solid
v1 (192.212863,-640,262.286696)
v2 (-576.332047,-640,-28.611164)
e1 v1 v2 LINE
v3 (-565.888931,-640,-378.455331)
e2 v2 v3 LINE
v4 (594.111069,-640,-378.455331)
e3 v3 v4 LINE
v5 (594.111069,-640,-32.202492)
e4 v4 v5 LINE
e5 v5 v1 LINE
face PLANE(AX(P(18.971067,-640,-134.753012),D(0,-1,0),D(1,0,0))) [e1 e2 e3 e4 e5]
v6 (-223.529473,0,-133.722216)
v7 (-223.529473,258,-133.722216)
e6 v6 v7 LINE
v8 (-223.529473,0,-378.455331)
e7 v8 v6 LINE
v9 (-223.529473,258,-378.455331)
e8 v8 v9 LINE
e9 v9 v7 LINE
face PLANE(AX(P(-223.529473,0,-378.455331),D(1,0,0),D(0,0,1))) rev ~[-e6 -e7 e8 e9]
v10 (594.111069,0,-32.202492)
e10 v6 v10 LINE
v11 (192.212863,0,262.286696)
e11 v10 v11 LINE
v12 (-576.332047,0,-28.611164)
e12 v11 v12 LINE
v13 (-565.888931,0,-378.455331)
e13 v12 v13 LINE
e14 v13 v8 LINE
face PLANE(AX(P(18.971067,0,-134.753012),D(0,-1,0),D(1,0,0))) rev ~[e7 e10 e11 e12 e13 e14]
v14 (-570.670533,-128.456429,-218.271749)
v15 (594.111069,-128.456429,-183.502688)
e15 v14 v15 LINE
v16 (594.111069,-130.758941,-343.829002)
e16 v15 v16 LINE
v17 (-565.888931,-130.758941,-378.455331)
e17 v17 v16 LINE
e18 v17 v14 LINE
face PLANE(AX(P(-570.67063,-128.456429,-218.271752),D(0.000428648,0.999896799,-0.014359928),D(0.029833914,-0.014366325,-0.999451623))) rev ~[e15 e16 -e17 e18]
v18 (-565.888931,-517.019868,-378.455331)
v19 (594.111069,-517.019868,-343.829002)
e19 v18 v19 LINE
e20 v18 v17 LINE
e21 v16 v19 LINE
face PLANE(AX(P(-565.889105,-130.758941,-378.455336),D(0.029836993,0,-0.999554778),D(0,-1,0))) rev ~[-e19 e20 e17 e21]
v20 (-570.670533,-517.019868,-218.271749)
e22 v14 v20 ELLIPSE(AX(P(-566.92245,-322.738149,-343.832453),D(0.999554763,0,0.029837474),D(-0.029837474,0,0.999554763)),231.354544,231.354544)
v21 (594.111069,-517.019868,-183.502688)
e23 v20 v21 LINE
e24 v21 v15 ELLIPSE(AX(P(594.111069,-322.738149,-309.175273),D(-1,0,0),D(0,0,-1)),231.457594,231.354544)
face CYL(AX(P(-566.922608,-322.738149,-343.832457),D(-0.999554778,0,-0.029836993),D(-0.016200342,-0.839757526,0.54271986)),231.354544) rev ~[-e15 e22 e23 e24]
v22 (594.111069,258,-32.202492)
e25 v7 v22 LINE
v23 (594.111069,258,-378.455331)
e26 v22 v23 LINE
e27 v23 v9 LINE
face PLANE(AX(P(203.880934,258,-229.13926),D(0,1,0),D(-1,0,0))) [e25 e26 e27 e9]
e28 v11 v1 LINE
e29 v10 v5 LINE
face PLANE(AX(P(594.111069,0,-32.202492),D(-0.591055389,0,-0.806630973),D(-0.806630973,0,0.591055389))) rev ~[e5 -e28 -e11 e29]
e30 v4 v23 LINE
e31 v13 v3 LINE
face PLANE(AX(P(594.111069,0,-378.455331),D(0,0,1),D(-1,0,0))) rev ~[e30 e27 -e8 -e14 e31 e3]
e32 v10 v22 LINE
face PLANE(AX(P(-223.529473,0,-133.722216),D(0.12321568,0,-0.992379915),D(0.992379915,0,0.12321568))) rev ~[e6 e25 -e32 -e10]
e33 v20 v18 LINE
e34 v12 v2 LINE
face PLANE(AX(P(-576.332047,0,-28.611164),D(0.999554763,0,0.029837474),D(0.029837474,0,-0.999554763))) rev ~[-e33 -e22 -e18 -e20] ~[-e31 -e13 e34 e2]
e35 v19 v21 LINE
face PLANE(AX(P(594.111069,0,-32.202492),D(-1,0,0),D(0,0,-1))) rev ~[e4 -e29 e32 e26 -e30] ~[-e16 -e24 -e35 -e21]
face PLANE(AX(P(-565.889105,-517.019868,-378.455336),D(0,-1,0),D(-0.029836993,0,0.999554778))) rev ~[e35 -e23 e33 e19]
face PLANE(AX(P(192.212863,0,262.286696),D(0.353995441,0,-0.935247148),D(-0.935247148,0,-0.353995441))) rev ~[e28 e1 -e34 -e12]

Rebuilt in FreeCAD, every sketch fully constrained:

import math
import FreeCAD as App
import Part
import Sketcher
from FreeCAD import Vector
Q = App.Units.Quantity

doc = App.newDocument("Part")
body = doc.addObject("PartDesign::Body", "Body")

# Sketch on XZ plane
sketch1 = body.newObject("Sketcher::SketchObject", "Sketch")
sketch1.AttachmentSupport = (doc.getObject("XZ_Plane"), [""])
sketch1.MapMode = "FlatFace"
sketch1.addGeometry([
    Part.LineSegment(Vector(-576.332047, -28.611164, 0), Vector(-565.888931, -378.455331, 0)),  # 0
    Part.LineSegment(Vector(-565.888931, -378.455331, 0), Vector(594.111069, -378.455331, 0)),  # 1
    Part.LineSegment(Vector(594.111069, -378.455331, 0), Vector(594.111069, -32.202492, 0)),  # 2
    Part.LineSegment(Vector(594.111069, -32.202492, 0), Vector(192.212863, 262.286696, 0)),  # 3
    Part.LineSegment(Vector(192.212863, 262.286696, 0), Vector(-576.332047, -28.611164, 0)),  # 4
], False)
sketch1.addConstraint([
    Sketcher.Constraint("Coincident", 0, 2, 1, 1),
    Sketcher.Constraint("Coincident", 1, 2, 2, 1),
    Sketcher.Constraint("Coincident", 2, 2, 3, 1),
    Sketcher.Constraint("Coincident", 3, 2, 4, 1),
    Sketcher.Constraint("Coincident", 4, 2, 0, 1),
    Sketcher.Constraint("Horizontal", 1),
    Sketcher.Constraint("Vertical", 2),
    Sketcher.Constraint("DistanceX", 1, 1, 1, 2, Q("1160 mm")),
    Sketcher.Constraint("Distance", 0, Q("350 mm")),
    Sketcher.Constraint("DistanceY", 2, 1, 2, 2, Q("346.252839 mm")),
    Sketcher.Constraint("Distance", 4, Q("821.755951 mm")),
    Sketcher.Constraint("DistanceX", 0, 2, -1, 1, Q("565.888931 mm")),
    Sketcher.Constraint("DistanceY", 0, 2, -1, 1, Q("378.455331 mm")),
    Sketcher.Constraint("DistanceY", 2, 2, 3, 2, Q("294.489188 mm")),
    Sketcher.Constraint("DistanceX", 4, 2, 3, 2, Q("768.54491 mm")),
])
pad1 = body.newObject("PartDesign::Pad", "Pad")
pad1.Profile = sketch1
pad1.Length = 640

# Sketch on XZ plane
sketch2 = body.newObject("Sketcher::SketchObject", "Sketch001")
sketch2.AttachmentSupport = (doc.getObject("XZ_Plane"), [""])
sketch2.MapMode = "FlatFace"
sketch2.addGeometry([
    Part.LineSegment(Vector(-223.529473, -133.722216, 0), Vector(594.111069, -32.202492, 0)),
    Part.LineSegment(Vector(594.111069, -32.202492, 0), Vector(594.111069, -378.455331, 0)),
    Part.LineSegment(Vector(594.111069, -378.455331, 0), Vector(-223.529473, -378.455331, 0)),
    Part.LineSegment(Vector(-223.529473, -378.455331, 0), Vector(-223.529473, -133.722216, 0)),
], False)
sketch2.addConstraint([
    Sketcher.Constraint("Coincident", 0, 2, 1, 1),
    Sketcher.Constraint("Coincident", 1, 2, 2, 1),
    Sketcher.Constraint("Coincident", 2, 2, 3, 1),
    Sketcher.Constraint("Coincident", 3, 2, 0, 1),
    Sketcher.Constraint("Vertical", 1),
    Sketcher.Constraint("Horizontal", 2),
    Sketcher.Constraint("Vertical", 3),
    Sketcher.Constraint("DistanceY", 1, 2, 1, 1, Q("346.252839 mm")),
    Sketcher.Constraint("DistanceX", 2, 2, 2, 1, Q("817.640542 mm")),
    Sketcher.Constraint("DistanceY", 3, 1, 3, 2, Q("244.733115 mm")),
    Sketcher.Constraint("DistanceX", -1, 1, 0, 2, Q("594.111069 mm")),
    Sketcher.Constraint("DistanceY", 1, 2, -1, 1, Q("378.455331 mm")),
])
pad2 = body.newObject("PartDesign::Pad", "Pad001")
pad2.Profile = sketch2
pad2.Length = 258
pad2.Reversed = True

# Sketch on an angled plane
sketch3 = body.newObject("Sketcher::SketchObject", "Sketch002")
sketch3.Placement = App.Placement(Vector(-576.672258, 0, -17.214108), App.Rotation(Vector(0, -1, 0), Vector(-0.029836993, 0, 0.999554778), Vector(-0.999554778, 0, -0.029836993), "ZXY"))
sketch3.addGeometry([
    Part.LineSegment(Vector(128.456429, -201.147199, 0), Vector(130.758941, -361.402132, 0)),
    Part.LineSegment(Vector(130.758941, -361.402132, 0), Vector(517.019868, -361.402132, 0)),
    Part.LineSegment(Vector(517.019868, -361.402132, 0), Vector(517.019868, -201.147199, 0)),
    Part.ArcOfCircle(Part.Circle(Vector(322.738149, -326.763832, 0), Vector(0, 0, 1), 231.354544), math.radians(32.885476), math.radians(147.114524)),
], False)
sketch3.addConstraint([
    Sketcher.Constraint("Coincident", 0, 2, 1, 1),
    Sketcher.Constraint("Coincident", 1, 2, 2, 1),
    Sketcher.Constraint("Coincident", 2, 2, 3, 1),
    Sketcher.Constraint("Coincident", 3, 2, 0, 1),
    Sketcher.Constraint("Horizontal", 1),
    Sketcher.Constraint("Vertical", 2),
    Sketcher.Constraint("Horizontal", 2, 2, 3, 2),
    Sketcher.Constraint("Radius", 3, Q("231.354544 mm")),
    Sketcher.Constraint("DistanceY", 2, 2, -1, 1, Q("201.147199 mm")),
    Sketcher.Constraint("DistanceY", 0, 2, 3, 3, Q("34.6383 mm")),
    Sketcher.Constraint("DistanceX", 1, 1, 1, 2, Q("386.260927 mm")),
    Sketcher.Constraint("DistanceY", 2, 1, 2, 2, Q("160.254933 mm")),
    Sketcher.Constraint("DistanceX", -1, 1, 3, 3, Q("322.738149 mm")),
])
pocket1 = body.newObject("PartDesign::Pocket", "Pocket")
pocket1.Profile = sketch3
pocket1.Length = 1440

doc.recompute()
